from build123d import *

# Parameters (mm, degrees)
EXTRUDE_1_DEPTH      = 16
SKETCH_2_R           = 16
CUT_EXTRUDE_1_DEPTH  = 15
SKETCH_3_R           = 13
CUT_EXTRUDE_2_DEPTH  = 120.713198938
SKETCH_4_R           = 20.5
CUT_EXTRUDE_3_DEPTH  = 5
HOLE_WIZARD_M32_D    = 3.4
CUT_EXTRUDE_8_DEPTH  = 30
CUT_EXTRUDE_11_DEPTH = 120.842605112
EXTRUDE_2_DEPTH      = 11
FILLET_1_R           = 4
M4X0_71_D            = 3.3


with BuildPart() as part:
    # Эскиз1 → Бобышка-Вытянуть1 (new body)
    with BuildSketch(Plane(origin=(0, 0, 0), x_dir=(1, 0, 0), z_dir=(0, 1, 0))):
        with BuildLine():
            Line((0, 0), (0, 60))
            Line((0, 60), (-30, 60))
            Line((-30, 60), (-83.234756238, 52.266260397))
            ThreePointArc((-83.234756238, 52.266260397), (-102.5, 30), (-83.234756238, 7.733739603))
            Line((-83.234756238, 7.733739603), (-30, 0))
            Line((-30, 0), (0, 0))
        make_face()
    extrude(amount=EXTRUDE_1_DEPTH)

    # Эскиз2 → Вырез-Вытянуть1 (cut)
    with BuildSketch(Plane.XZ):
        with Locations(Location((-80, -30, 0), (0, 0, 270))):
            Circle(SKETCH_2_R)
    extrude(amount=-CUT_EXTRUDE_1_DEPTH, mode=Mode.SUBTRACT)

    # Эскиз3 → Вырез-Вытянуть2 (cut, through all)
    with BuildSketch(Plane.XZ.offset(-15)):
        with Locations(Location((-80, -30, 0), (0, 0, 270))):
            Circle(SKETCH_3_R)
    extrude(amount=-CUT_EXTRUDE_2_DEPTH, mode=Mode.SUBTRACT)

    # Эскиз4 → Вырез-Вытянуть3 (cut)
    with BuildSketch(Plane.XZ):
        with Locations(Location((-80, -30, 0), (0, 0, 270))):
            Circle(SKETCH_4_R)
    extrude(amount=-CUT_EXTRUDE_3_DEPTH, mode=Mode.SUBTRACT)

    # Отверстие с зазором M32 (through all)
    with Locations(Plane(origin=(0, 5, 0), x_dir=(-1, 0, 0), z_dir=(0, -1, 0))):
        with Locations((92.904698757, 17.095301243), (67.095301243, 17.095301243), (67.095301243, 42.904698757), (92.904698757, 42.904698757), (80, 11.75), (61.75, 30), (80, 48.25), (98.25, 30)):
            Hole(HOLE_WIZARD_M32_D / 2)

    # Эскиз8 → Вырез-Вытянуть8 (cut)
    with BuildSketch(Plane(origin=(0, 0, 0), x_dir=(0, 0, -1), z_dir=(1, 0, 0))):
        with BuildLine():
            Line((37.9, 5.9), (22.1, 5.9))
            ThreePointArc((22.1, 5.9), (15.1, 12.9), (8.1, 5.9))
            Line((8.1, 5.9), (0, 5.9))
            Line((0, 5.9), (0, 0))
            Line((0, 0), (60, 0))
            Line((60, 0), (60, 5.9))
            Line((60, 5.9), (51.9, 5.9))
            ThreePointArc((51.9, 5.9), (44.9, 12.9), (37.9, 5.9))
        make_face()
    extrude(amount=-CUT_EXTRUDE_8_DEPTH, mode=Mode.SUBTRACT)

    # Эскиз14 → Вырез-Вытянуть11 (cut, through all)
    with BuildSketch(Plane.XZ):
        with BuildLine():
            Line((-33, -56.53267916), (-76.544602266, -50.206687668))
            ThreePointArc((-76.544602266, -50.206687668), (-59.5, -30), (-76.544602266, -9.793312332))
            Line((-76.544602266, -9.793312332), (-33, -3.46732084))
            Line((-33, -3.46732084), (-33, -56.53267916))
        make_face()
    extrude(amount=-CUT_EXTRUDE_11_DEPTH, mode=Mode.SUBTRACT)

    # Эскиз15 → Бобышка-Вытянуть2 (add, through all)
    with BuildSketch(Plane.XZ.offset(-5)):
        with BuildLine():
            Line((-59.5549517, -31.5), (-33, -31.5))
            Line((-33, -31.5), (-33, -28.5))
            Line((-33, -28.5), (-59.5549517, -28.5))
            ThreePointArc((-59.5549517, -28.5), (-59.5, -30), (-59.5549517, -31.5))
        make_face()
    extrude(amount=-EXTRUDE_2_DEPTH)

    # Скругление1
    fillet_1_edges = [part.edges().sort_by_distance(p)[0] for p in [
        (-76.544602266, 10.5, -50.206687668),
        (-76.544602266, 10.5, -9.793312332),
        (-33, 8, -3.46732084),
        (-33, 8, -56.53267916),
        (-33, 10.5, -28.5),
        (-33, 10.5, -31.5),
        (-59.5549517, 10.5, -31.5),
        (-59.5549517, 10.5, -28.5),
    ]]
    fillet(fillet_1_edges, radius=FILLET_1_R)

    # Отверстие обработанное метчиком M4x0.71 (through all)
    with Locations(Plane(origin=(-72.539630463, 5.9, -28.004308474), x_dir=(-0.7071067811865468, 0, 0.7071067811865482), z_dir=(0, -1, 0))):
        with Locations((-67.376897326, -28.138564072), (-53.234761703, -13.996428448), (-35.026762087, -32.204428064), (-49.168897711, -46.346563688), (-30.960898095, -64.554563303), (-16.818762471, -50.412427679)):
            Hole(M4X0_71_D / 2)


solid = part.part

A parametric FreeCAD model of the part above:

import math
import FreeCAD as App
import Part
import Sketcher
from FreeCAD import Vector
Q = App.Units.Quantity


def edges_at(feature, points):
    """Names of the edges that pass closest to the given points."""
    edges = feature.Shape.Edges
    near = lambda p: min(range(len(edges)), key=lambda i: edges[i].distToShape(Part.Vertex(*p))[0])
    return sorted({f"Edge{near(p) + 1}" for p in points})

doc = App.newDocument("Part")
body = doc.addObject("PartDesign::Body", "Body")

# Sketch on XZ plane
sketch1 = body.newObject("Sketcher::SketchObject", "Sketch")
sketch1.AttachmentSupport = (doc.getObject("XZ_Plane"), [""])
sketch1.MapMode = "FlatFace"
sketch1.addGeometry([
    Part.LineSegment(Vector(0, 0, 0), Vector(0, -60, 0)),  # 0
    Part.LineSegment(Vector(0, -60, 0), Vector(-30, -60, 0)),  # 1
    Part.LineSegment(Vector(-30, -60, 0), Vector(-83.234756, -52.26626, 0)),  # 2
    Part.ArcOfCircle(Part.Circle(Vector(-80, -30, 0), Vector(0, 0, 1), 22.5), math.radians(98.265882), math.radians(261.734118)),  # 3
    Part.LineSegment(Vector(-83.234756, -7.73374, 0), Vector(-30, 0, 0)),  # 4
    Part.LineSegment(Vector(-30, 0, 0), Vector(0, 0, 0)),  # 5
], False)
sketch1.addConstraint([
    Sketcher.Constraint("Coincident", 0, 2, 1, 1),
    Sketcher.Constraint("Coincident", 1, 2, 2, 1),
    Sketcher.Constraint("Tangent", 2, 2, 3, 2),
    Sketcher.Constraint("Tangent", 3, 1, 4, 1),
    Sketcher.Constraint("Coincident", 4, 2, 5, 1),
    Sketcher.Constraint("Coincident", 5, 2, 0, 1),
    Sketcher.Constraint("Vertical", 0),
    Sketcher.Constraint("Horizontal", 1),
    Sketcher.Constraint("Horizontal", 5),
    Sketcher.Constraint("Coincident", 5, 2, -1, 1),
    Sketcher.Constraint("Vertical", 2, 2, 3, 1),
    Sketcher.Constraint("Vertical", 1, 2, 4, 2),
    Sketcher.Constraint("Radius", 3, Q("22.5 mm")),
    Sketcher.Constraint("DistanceX", 1, 2, 1, 1, Q("30 mm")),
    Sketcher.Constraint("DistanceY", 0, 2, 0, 1, Q("60 mm")),
    Sketcher.Constraint("DistanceX", 3, 3, -1, 1, Q("80 mm")),
])
pad1 = body.newObject("PartDesign::Pad", "Pad")
pad1.Profile = sketch1
pad1.Length = 16
pad1.Reversed = True

# Sketch on XZ plane
sketch2 = body.newObject("Sketcher::SketchObject", "Sketch001")
sketch2.AttachmentSupport = (doc.getObject("XZ_Plane"), [""])
sketch2.MapMode = "FlatFace"
sketch2.addGeometry(Part.Circle(Vector(-80, -30, 0), Vector(0, 0, 1), 16), False)
sketch2.addConstraint([
    Sketcher.Constraint("Diameter", 0, Q("32 mm")),
    Sketcher.Constraint("DistanceX", 0, 3, -1, 1, Q("80 mm")),
    Sketcher.Constraint("DistanceY", 0, 3, -1, 1, Q("30 mm")),
])
pocket1 = body.newObject("PartDesign::Pocket", "Pocket")
pocket1.Profile = sketch2
pocket1.Length = 15

# Sketch on XZ plane
sketch3 = body.newObject("Sketcher::SketchObject", "Sketch002")
sketch3.AttachmentSupport = (doc.getObject("XZ_Plane"), [""])
sketch3.MapMode = "FlatFace"
sketch3.AttachmentOffset = App.Placement(Vector(0, 0, -15), App.Rotation())
sketch3.addGeometry(Part.Circle(Vector(-80, -30, 0), Vector(0, 0, 1), 13), False)
sketch3.addConstraint([
    Sketcher.Constraint("Diameter", 0, Q("26 mm")),
    Sketcher.Constraint("DistanceX", 0, 3, -1, 1, Q("80 mm")),
    Sketcher.Constraint("DistanceY", 0, 3, -1, 1, Q("30 mm")),
])
pocket2 = body.newObject("PartDesign::Pocket", "Pocket001")
pocket2.Profile = sketch3
pocket2.Type = "ThroughAll"

# Sketch on XZ plane
sketch4 = body.newObject("Sketcher::SketchObject", "Sketch003")
sketch4.AttachmentSupport = (doc.getObject("XZ_Plane"), [""])
sketch4.MapMode = "FlatFace"
sketch4.addGeometry(Part.Circle(Vector(-80, -30, 0), Vector(0, 0, 1), 20.5), False)
sketch4.addConstraint([
    Sketcher.Constraint("Diameter", 0, Q("41 mm")),
    Sketcher.Constraint("DistanceX", 0, 3, -1, 1, Q("80 mm")),
    Sketcher.Constraint("DistanceY", 0, 3, -1, 1, Q("30 mm")),
])
pocket3 = body.newObject("PartDesign::Pocket", "Pocket002")
pocket3.Profile = sketch4
pocket3.Length = 5

# Sketch on XZ plane
sketch5 = body.newObject("Sketcher::SketchObject", "Sketch004")
sketch5.AttachmentSupport = (doc.getObject("XZ_Plane"), [""])
sketch5.MapMode = "FlatFace"
sketch5.AttachmentOffset = App.Placement(Vector(0, 0, -5), App.Rotation())
sketch5.addGeometry([
    Part.Circle(Vector(-92.904699, -17.095301, 0), Vector(0, 0, 1), 1.7),  # 0
    Part.Circle(Vector(-67.095301, -17.095301, 0), Vector(0, 0, 1), 1.7),  # 1
    Part.Circle(Vector(-67.095301, -42.904699, 0), Vector(0, 0, 1), 1.7),  # 2
    Part.Circle(Vector(-92.904699, -42.904699, 0), Vector(0, 0, 1), 1.7),  # 3
    Part.Circle(Vector(-80, -11.75, 0), Vector(0, 0, 1), 1.7),  # 4
    Part.Circle(Vector(-61.75, -30, 0), Vector(0, 0, 1), 1.7),  # 5
    Part.Circle(Vector(-80, -48.25, 0), Vector(0, 0, 1), 1.7),  # 6
    Part.Circle(Vector(-98.25, -30, 0), Vector(0, 0, 1), 1.7),  # 7
], False)
sketch5.addConstraint([
    Sketcher.Constraint("Equal", 0, 1),
    Sketcher.Constraint("Equal", 1, 2),
    Sketcher.Constraint("Equal", 2, 3),
    Sketcher.Constraint("Equal", 3, 4),
    Sketcher.Constraint("Equal", 4, 5),
    Sketcher.Constraint("Equal", 5, 6),
    Sketcher.Constraint("Equal", 6, 7),
    Sketcher.Constraint("Horizontal", 0, 3, 1, 3),
    Sketcher.Constraint("Horizontal", 2, 3, 3, 3),
    Sketcher.Constraint("Horizontal", 5, 3, 7, 3),
    Sketcher.Constraint("Vertical", 1, 3, 2, 3),
    Sketcher.Constraint("Vertical", 0, 3, 3, 3),
    Sketcher.Constraint("Vertical", 4, 3, 6, 3),
    Sketcher.Constraint("Diameter", 0, Q("3.4 mm")),
    Sketcher.Constraint("DistanceX", 4, 3, -1, 1, Q("80 mm")),
    Sketcher.Constraint("DistanceY", 5, 3, -1, 1, Q("30 mm")),
    Sketcher.Constraint("DistanceY", 4, 3, -1, 1, Q("11.75 mm")),
    Sketcher.Constraint("DistanceX", 5, 3, -1, 1, Q("61.75 mm")),
    Sketcher.Constraint("DistanceY", 6, 3, -1, 1, Q("48.25 mm")),
    Sketcher.Constraint("DistanceX", 7, 3, -1, 1, Q("98.25 mm")),
    Sketcher.Constraint("DistanceX", 0, 3, -1, 1, Q("92.904699 mm")),
    Sketcher.Constraint("DistanceY", 0, 3, -1, 1, Q("17.095301 mm")),
    Sketcher.Constraint("DistanceX", 1, 3, -1, 1, Q("67.095301 mm")),
    Sketcher.Constraint("DistanceY", 2, 3, -1, 1, Q("42.904699 mm")),
])
doc.recompute()
hole = body.newObject("PartDesign::Hole", "Hole")
hole.Profile = sketch5
hole.ThreadType = "None"
hole.Diameter = 3.4
hole.DepthType = "ThroughAll"

# Sketch on YZ plane
sketch6 = body.newObject("Sketcher::SketchObject", "Sketch005")
sketch6.AttachmentSupport = (doc.getObject("YZ_Plane"), [""])
sketch6.MapMode = "FlatFace"
sketch6.addGeometry([
    Part.LineSegment(Vector(5.9, -37.9, 0), Vector(5.9, -22.1, 0)),  # 0
    Part.ArcOfCircle(Part.Circle(Vector(5.9, -15.1, 0), Vector(0, 0, 1), 7), math.radians(-90), math.radians(90)),  # 1
    Part.LineSegment(Vector(5.9, -8.1, 0), Vector(5.9, 0, 0)),  # 2
    Part.LineSegment(Vector(5.9, 0, 0), Vector(0, 0, 0)),  # 3
    Part.LineSegment(Vector(0, 0, 0), Vector(0, -60, 0)),  # 4
    Part.LineSegment(Vector(0, -60, 0), Vector(5.9, -60, 0)),  # 5
    Part.LineSegment(Vector(5.9, -60, 0), Vector(5.9, -51.9, 0)),  # 6
    Part.ArcOfCircle(Part.Circle(Vector(5.9, -44.9, 0), Vector(0, 0, 1), 7), math.radians(-90), math.radians(90)),  # 7
], False)
sketch6.addConstraint([
    Sketcher.Constraint("Coincident", 0, 2, 1, 1),
    Sketcher.Constraint("Coincident", 1, 2, 2, 1),
    Sketcher.Constraint("Coincident", 2, 2, 3, 1),
    Sketcher.Constraint("Coincident", 3, 2, 4, 1),
    Sketcher.Constraint("Coincident", 4, 2, 5, 1),
    Sketcher.Constraint("Coincident", 5, 2, 6, 1),
    Sketcher.Constraint("Coincident", 6, 2, 7, 1),
    Sketcher.Constraint("Coincident", 7, 2, 0, 1),
    Sketcher.Constraint("Vertical", 0),
    Sketcher.Constraint("Vertical", 2),
    Sketcher.Constraint("Horizontal", 3),
    Sketcher.Constraint("Vertical", 4),
    Sketcher.Constraint("Horizontal", 5),
    Sketcher.Constraint("Vertical", 6),
    Sketcher.Constraint("Coincident", 3, 2, -1, 1),
    Sketcher.Constraint("Equal", 1, 7),
    Sketcher.Constraint("Vertical", 1, 3, 7, 3),
    Sketcher.Constraint("Vertical", 7, 3, 0, 2),
    Sketcher.Constraint("Vertical", 0, 2, 1, 2),
    Sketcher.Constraint("Vertical", 2, 2, 5, 2),
    Sketcher.Constraint("Equal", 2, 6),
    Sketcher.Constraint("Radius", 1, Q("7 mm")),
    Sketcher.Constraint("DistanceY", 4, 2, 4, 1, Q("60 mm")),
    Sketcher.Constraint("DistanceX", 3, 2, 3, 1, Q("5.9 mm")),
    Sketcher.Constraint("DistanceY", 0, 1, 0, 2, Q("15.8 mm")),
])
pocket4 = body.newObject("PartDesign::Pocket", "Pocket003")
pocket4.Profile = sketch6
pocket4.Length = 30

# Sketch on XZ plane
sketch7 = body.newObject("Sketcher::SketchObject", "Sketch006")
sketch7.AttachmentSupport = (doc.getObject("XZ_Plane"), [""])
sketch7.MapMode = "FlatFace"
sketch7.addGeometry([
    Part.LineSegment(Vector(-76.544602, -50.206688, 0), Vector(-33, -56.532679, 0)),
    Part.LineSegment(Vector(-33, -56.532679, 0), Vector(-33, -3.467321, 0)),
    Part.LineSegment(Vector(-33, -3.467321, 0), Vector(-76.544602, -9.793312, 0)),
    Part.ArcOfCircle(Part.Circle(Vector(-80, -30, 0), Vector(0, 0, 1), 20.5), math.radians(-80.296128), math.radians(80.296128)),
], False)
sketch7.addConstraint([
    Sketcher.Constraint("Coincident", 0, 2, 1, 1),
    Sketcher.Constraint("Coincident", 1, 2, 2, 1),
    Sketcher.Constraint("Coincident", 2, 2, 3, 2),
    Sketcher.Constraint("Coincident", 3, 1, 0, 1),
    Sketcher.Constraint("Vertical", 1),
    Sketcher.Constraint("Vertical", 2, 2, 3, 1),
    Sketcher.Constraint("Equal", 0, 2),
    Sketcher.Constraint("Radius", 3, Q("20.5 mm")),
    Sketcher.Constraint("DistanceX", 3, 3, -1, 1, Q("80 mm")),
    Sketcher.Constraint("DistanceY", 3, 3, -1, 1, Q("30 mm")),
    Sketcher.Constraint("DistanceX", 0, 2, -1, 1, Q("33 mm")),
    Sketcher.Constraint("DistanceY", 1, 1, 1, 2, Q("53.065358 mm")),
    Sketcher.Constraint("Distance", 0, Q("44.001711 mm")),
])
pocket5 = body.newObject("PartDesign::Pocket", "Pocket004")
pocket5.Profile = sketch7
pocket5.Type = "ThroughAll"

# Sketch on XZ plane
sketch8 = body.newObject("Sketcher::SketchObject", "Sketch007")
sketch8.AttachmentSupport = (doc.getObject("XZ_Plane"), [""])
sketch8.MapMode = "FlatFace"
sketch8.AttachmentOffset = App.Placement(Vector(0, 0, -5), App.Rotation())
sketch8.addGeometry([
    Part.LineSegment(Vector(-59.554952, -31.5, 0), Vector(-33, -31.5, 0)),
    Part.LineSegment(Vector(-33, -31.5, 0), Vector(-33, -28.5, 0)),
    Part.LineSegment(Vector(-33, -28.5, 0), Vector(-59.554952, -28.5, 0)),
    Part.ArcOfCircle(Part.Circle(Vector(-80, -30, 0), Vector(0, 0, 1), 20.5), math.radians(-4.196124), math.radians(4.196124)),
], False)
sketch8.addConstraint([
    Sketcher.Constraint("Coincident", 0, 2, 1, 1),
    Sketcher.Constraint("Coincident", 1, 2, 2, 1),
    Sketcher.Constraint("Coincident", 2, 2, 3, 2),
    Sketcher.Constraint("Coincident", 3, 1, 0, 1),
    Sketcher.Constraint("Horizontal", 0),
    Sketcher.Constraint("Vertical", 1),
    Sketcher.Constraint("Horizontal", 2),
    Sketcher.Constraint("Vertical", 2, 2, 3, 1),
    Sketcher.Constraint("Radius", 3, Q("20.5 mm")),
    Sketcher.Constraint("DistanceY", 1, 1, 1, 2, Q("3 mm")),
    Sketcher.Constraint("DistanceX", 3, 3, -1, 1, Q("80 mm")),
    Sketcher.Constraint("DistanceY", 3, 3, -1, 1, Q("30 mm")),
    Sketcher.Constraint("DistanceX", 0, 2, -1, 1, Q("33 mm")),
])
pad2 = body.newObject("PartDesign::Pad", "Pad001")
pad2.Profile = sketch8
pad2.Length = 11
pad2.Reversed = True
doc.recompute()

fillet = body.newObject("PartDesign::Fillet", "Fillet")
fillet.Base = (pad2, edges_at(pad2, [
    (-76.545, 10.5, -50.207),
    (-76.545, 10.5, -9.793),
    (-33, 8, -3.467),
    (-33, 8, -56.533),
    (-33, 10.5, -28.5),
    (-33, 10.5, -31.5),
    (-59.555, 10.5, -31.5),
    (-59.555, 10.5, -28.5),
]))
fillet.Radius = 4

# Sketch on XZ plane
sketch9 = body.newObject("Sketcher::SketchObject", "Sketch008")
sketch9.AttachmentSupport = (doc.getObject("XZ_Plane"), [""])
sketch9.MapMode = "FlatFace"
sketch9.AttachmentOffset = App.Placement(Vector(0, 0, -5.9), App.Rotation())
sketch9.addGeometry([
    Part.Circle(Vector(-5, -55.75, 0), Vector(0, 0, 1), 1.65),  # 0
    Part.Circle(Vector(-25, -55.75, 0), Vector(0, 0, 1), 1.65),  # 1
    Part.Circle(Vector(-25, -30, 0), Vector(0, 0, 1), 1.65),  # 2
    Part.Circle(Vector(-5, -30, 0), Vector(0, 0, 1), 1.65),  # 3
    Part.Circle(Vector(-5, -4.25, 0), Vector(0, 0, 1), 1.65),  # 4
    Part.Circle(Vector(-25, -4.25, 0), Vector(0, 0, 1), 1.65),  # 5
], False)
sketch9.addConstraint([
    Sketcher.Constraint("Equal", 0, 1),
    Sketcher.Constraint("Equal", 1, 2),
    Sketcher.Constraint("Equal", 2, 3),
    Sketcher.Constraint("Equal", 3, 4),
    Sketcher.Constraint("Equal", 4, 5),
    Sketcher.Constraint("Horizontal", 0, 3, 1, 3),
    Sketcher.Constraint("Horizontal", 2, 3, 3, 3),
    Sketcher.Constraint("Horizontal", 4, 3, 5, 3),
    Sketcher.Constraint("Vertical", 1, 3, 2, 3),
    Sketcher.Constraint("Vertical", 0, 3, 3, 3),
    Sketcher.Constraint("Vertical", 3, 3, 4, 3),
    Sketcher.Constraint("Vertical", 2, 3, 5, 3),
    Sketcher.Constraint("Diameter", 0, Q("3.3 mm")),
    Sketcher.Constraint("DistanceX", 0, 3, -1, 1, Q("5 mm")),
    Sketcher.Constraint("DistanceX", 1, 3, -1, 1, Q("25 mm")),
    Sketcher.Constraint("DistanceY", 2, 3, -1, 1, Q("30 mm")),
    Sketcher.Constraint("DistanceY", 0, 3, 4, 3, Q("51.5 mm")),
    Sketcher.Constraint("DistanceY", 0, 3, -1, 1, Q("55.75 mm")),
])
doc.recompute()
hole2 = body.newObject("PartDesign::Hole", "Hole001")
hole2.Profile = sketch9
hole2.ThreadType = "None"
hole2.Diameter = 3.3
hole2.DepthType = "ThroughAll"

doc.recompute()
